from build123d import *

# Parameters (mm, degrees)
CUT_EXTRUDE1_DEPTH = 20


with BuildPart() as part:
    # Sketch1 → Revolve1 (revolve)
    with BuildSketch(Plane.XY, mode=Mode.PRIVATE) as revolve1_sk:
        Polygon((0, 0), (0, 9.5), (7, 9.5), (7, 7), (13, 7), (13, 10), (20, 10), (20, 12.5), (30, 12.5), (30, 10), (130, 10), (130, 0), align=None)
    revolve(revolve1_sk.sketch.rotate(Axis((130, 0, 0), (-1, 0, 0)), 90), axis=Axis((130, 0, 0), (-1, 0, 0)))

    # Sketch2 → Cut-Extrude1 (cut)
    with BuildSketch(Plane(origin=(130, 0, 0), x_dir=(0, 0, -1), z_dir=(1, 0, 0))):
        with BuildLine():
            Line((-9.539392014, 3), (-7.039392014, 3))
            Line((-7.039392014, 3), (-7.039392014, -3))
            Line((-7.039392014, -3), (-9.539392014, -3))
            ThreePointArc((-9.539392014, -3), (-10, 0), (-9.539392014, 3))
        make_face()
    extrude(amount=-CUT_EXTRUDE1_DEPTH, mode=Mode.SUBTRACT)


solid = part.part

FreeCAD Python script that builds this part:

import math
import FreeCAD as App
import Part
import Sketcher


def add_polygon(sketch, points):
    """Adds a closed chain of lines whose ends are joined by coincident constraints."""
    first, n = sketch.GeometryCount, len(points)
    for a, b in zip(points, points[1:] + points[:1]):
        sketch.addGeometry(Part.LineSegment(App.Vector(*a, 0), App.Vector(*b, 0)), False)
    for i in range(n):
        sketch.addConstraint(Sketcher.Constraint("Coincident", first + i, 2, first + (i + 1) % n, 1))

doc = App.newDocument("Part")
body = doc.addObject("PartDesign::Body", "Body")

# Sketch on XY plane
sketch1 = body.newObject("Sketcher::SketchObject", "Sketch")
sketch1.AttachmentSupport = (doc.getObject("XY_Plane"), [""])
sketch1.MapMode = "FlatFace"
add_polygon(sketch1, [(0, 9.5), (0, 0), (130, 0), (130, 10), (30, 10), (30, 12.5), (20, 12.5), (20, 10), (13, 10), (13, 7), (7, 7), (7, 9.5)])  # lines 0-11
sketch1.addConstraint([
    Sketcher.Constraint("Vertical", 0),
    Sketcher.Constraint("Horizontal", 1),
    Sketcher.Constraint("Vertical", 2),
    Sketcher.Constraint("Horizontal", 3),
    Sketcher.Constraint("Vertical", 4),
    Sketcher.Constraint("Horizontal", 5),
    Sketcher.Constraint("Vertical", 6),
    Sketcher.Constraint("Horizontal", 7),
    Sketcher.Constraint("Vertical", 8),
    Sketcher.Constraint("Horizontal", 9),
    Sketcher.Constraint("Vertical", 10),
    Sketcher.Constraint("Horizontal", 11),
    Sketcher.Constraint("Coincident", 0, 2, -1, 1),
    Sketcher.Constraint("Horizontal", 3, 2, 6, 2),
    Sketcher.Constraint("Equal", 7, 11),
    Sketcher.Constraint("Equal", 5, 2),
    Sketcher.Constraint("Equal", 6, 10),
    Sketcher.Constraint("DistanceX", 1, 1, 1, 2, 130.0),
    Sketcher.Constraint("DistanceX", 3, 2, 3, 1, 100.0),
    Sketcher.Constraint("DistanceX", 5, 2, 5, 1, 10.0),
    Sketcher.Constraint("DistanceX", 7, 2, 7, 1, 7.0),
    Sketcher.Constraint("DistanceY", 8, 2, 8, 1, 3.0),
    Sketcher.Constraint("DistanceY", 0, 2, 0, 1, 9.5),
])
revolution = body.newObject("PartDesign::Revolution", "Revolution")
revolution.Profile = sketch1
revolution.ReferenceAxis = (sketch1, ["H_Axis"])
revolution.Angle = 360

# Sketch on YZ plane
sketch2 = body.newObject("Sketcher::SketchObject", "Sketch001")
sketch2.AttachmentSupport = (doc.getObject("YZ_Plane"), [""])
sketch2.MapMode = "FlatFace"
sketch2.AttachmentOffset = App.Placement(App.Vector(0, 0, 130), App.Rotation())
sketch2.addGeometry([
    Part.LineSegment(App.Vector(3, 7.039392, 0), App.Vector(3, 9.539392, 0)),
    Part.ArcOfCircle(Part.Circle(App.Vector(0, 0, 0), App.Vector(0, 0, 1), 10), math.radians(72.542397), math.radians(107.457603)),
    Part.LineSegment(App.Vector(-3, 9.539392, 0), App.Vector(-3, 7.039392, 0)),
    Part.LineSegment(App.Vector(-3, 7.039392, 0), App.Vector(3, 7.039392, 0)),
], False)
sketch2.addConstraint([
    Sketcher.Constraint("Coincident", 0, 2, 1, 1),
    Sketcher.Constraint("Coincident", 1, 2, 2, 1),
    Sketcher.Constraint("Coincident", 2, 2, 3, 1),
    Sketcher.Constraint("Coincident", 3, 2, 0, 1),
    Sketcher.Constraint("Vertical", 0),
    Sketcher.Constraint("Vertical", 2),
    Sketcher.Constraint("Horizontal", 3),
    Sketcher.Constraint("Coincident", 1, 3, -1, 1),
    Sketcher.Constraint("Horizontal", 0, 2, 1, 2),
    Sketcher.Constraint("Radius", 1, 10.0),
    Sketcher.Constraint("DistanceX", 3, 1, 3, 2, 6.0),
    Sketcher.Constraint("DistanceY", 0, 1, 0, 2, 2.5),
])
pocket1 = body.newObject("PartDesign::Pocket", "Pocket")
pocket1.Profile = sketch2
pocket1.Length = 20

doc.recompute()
